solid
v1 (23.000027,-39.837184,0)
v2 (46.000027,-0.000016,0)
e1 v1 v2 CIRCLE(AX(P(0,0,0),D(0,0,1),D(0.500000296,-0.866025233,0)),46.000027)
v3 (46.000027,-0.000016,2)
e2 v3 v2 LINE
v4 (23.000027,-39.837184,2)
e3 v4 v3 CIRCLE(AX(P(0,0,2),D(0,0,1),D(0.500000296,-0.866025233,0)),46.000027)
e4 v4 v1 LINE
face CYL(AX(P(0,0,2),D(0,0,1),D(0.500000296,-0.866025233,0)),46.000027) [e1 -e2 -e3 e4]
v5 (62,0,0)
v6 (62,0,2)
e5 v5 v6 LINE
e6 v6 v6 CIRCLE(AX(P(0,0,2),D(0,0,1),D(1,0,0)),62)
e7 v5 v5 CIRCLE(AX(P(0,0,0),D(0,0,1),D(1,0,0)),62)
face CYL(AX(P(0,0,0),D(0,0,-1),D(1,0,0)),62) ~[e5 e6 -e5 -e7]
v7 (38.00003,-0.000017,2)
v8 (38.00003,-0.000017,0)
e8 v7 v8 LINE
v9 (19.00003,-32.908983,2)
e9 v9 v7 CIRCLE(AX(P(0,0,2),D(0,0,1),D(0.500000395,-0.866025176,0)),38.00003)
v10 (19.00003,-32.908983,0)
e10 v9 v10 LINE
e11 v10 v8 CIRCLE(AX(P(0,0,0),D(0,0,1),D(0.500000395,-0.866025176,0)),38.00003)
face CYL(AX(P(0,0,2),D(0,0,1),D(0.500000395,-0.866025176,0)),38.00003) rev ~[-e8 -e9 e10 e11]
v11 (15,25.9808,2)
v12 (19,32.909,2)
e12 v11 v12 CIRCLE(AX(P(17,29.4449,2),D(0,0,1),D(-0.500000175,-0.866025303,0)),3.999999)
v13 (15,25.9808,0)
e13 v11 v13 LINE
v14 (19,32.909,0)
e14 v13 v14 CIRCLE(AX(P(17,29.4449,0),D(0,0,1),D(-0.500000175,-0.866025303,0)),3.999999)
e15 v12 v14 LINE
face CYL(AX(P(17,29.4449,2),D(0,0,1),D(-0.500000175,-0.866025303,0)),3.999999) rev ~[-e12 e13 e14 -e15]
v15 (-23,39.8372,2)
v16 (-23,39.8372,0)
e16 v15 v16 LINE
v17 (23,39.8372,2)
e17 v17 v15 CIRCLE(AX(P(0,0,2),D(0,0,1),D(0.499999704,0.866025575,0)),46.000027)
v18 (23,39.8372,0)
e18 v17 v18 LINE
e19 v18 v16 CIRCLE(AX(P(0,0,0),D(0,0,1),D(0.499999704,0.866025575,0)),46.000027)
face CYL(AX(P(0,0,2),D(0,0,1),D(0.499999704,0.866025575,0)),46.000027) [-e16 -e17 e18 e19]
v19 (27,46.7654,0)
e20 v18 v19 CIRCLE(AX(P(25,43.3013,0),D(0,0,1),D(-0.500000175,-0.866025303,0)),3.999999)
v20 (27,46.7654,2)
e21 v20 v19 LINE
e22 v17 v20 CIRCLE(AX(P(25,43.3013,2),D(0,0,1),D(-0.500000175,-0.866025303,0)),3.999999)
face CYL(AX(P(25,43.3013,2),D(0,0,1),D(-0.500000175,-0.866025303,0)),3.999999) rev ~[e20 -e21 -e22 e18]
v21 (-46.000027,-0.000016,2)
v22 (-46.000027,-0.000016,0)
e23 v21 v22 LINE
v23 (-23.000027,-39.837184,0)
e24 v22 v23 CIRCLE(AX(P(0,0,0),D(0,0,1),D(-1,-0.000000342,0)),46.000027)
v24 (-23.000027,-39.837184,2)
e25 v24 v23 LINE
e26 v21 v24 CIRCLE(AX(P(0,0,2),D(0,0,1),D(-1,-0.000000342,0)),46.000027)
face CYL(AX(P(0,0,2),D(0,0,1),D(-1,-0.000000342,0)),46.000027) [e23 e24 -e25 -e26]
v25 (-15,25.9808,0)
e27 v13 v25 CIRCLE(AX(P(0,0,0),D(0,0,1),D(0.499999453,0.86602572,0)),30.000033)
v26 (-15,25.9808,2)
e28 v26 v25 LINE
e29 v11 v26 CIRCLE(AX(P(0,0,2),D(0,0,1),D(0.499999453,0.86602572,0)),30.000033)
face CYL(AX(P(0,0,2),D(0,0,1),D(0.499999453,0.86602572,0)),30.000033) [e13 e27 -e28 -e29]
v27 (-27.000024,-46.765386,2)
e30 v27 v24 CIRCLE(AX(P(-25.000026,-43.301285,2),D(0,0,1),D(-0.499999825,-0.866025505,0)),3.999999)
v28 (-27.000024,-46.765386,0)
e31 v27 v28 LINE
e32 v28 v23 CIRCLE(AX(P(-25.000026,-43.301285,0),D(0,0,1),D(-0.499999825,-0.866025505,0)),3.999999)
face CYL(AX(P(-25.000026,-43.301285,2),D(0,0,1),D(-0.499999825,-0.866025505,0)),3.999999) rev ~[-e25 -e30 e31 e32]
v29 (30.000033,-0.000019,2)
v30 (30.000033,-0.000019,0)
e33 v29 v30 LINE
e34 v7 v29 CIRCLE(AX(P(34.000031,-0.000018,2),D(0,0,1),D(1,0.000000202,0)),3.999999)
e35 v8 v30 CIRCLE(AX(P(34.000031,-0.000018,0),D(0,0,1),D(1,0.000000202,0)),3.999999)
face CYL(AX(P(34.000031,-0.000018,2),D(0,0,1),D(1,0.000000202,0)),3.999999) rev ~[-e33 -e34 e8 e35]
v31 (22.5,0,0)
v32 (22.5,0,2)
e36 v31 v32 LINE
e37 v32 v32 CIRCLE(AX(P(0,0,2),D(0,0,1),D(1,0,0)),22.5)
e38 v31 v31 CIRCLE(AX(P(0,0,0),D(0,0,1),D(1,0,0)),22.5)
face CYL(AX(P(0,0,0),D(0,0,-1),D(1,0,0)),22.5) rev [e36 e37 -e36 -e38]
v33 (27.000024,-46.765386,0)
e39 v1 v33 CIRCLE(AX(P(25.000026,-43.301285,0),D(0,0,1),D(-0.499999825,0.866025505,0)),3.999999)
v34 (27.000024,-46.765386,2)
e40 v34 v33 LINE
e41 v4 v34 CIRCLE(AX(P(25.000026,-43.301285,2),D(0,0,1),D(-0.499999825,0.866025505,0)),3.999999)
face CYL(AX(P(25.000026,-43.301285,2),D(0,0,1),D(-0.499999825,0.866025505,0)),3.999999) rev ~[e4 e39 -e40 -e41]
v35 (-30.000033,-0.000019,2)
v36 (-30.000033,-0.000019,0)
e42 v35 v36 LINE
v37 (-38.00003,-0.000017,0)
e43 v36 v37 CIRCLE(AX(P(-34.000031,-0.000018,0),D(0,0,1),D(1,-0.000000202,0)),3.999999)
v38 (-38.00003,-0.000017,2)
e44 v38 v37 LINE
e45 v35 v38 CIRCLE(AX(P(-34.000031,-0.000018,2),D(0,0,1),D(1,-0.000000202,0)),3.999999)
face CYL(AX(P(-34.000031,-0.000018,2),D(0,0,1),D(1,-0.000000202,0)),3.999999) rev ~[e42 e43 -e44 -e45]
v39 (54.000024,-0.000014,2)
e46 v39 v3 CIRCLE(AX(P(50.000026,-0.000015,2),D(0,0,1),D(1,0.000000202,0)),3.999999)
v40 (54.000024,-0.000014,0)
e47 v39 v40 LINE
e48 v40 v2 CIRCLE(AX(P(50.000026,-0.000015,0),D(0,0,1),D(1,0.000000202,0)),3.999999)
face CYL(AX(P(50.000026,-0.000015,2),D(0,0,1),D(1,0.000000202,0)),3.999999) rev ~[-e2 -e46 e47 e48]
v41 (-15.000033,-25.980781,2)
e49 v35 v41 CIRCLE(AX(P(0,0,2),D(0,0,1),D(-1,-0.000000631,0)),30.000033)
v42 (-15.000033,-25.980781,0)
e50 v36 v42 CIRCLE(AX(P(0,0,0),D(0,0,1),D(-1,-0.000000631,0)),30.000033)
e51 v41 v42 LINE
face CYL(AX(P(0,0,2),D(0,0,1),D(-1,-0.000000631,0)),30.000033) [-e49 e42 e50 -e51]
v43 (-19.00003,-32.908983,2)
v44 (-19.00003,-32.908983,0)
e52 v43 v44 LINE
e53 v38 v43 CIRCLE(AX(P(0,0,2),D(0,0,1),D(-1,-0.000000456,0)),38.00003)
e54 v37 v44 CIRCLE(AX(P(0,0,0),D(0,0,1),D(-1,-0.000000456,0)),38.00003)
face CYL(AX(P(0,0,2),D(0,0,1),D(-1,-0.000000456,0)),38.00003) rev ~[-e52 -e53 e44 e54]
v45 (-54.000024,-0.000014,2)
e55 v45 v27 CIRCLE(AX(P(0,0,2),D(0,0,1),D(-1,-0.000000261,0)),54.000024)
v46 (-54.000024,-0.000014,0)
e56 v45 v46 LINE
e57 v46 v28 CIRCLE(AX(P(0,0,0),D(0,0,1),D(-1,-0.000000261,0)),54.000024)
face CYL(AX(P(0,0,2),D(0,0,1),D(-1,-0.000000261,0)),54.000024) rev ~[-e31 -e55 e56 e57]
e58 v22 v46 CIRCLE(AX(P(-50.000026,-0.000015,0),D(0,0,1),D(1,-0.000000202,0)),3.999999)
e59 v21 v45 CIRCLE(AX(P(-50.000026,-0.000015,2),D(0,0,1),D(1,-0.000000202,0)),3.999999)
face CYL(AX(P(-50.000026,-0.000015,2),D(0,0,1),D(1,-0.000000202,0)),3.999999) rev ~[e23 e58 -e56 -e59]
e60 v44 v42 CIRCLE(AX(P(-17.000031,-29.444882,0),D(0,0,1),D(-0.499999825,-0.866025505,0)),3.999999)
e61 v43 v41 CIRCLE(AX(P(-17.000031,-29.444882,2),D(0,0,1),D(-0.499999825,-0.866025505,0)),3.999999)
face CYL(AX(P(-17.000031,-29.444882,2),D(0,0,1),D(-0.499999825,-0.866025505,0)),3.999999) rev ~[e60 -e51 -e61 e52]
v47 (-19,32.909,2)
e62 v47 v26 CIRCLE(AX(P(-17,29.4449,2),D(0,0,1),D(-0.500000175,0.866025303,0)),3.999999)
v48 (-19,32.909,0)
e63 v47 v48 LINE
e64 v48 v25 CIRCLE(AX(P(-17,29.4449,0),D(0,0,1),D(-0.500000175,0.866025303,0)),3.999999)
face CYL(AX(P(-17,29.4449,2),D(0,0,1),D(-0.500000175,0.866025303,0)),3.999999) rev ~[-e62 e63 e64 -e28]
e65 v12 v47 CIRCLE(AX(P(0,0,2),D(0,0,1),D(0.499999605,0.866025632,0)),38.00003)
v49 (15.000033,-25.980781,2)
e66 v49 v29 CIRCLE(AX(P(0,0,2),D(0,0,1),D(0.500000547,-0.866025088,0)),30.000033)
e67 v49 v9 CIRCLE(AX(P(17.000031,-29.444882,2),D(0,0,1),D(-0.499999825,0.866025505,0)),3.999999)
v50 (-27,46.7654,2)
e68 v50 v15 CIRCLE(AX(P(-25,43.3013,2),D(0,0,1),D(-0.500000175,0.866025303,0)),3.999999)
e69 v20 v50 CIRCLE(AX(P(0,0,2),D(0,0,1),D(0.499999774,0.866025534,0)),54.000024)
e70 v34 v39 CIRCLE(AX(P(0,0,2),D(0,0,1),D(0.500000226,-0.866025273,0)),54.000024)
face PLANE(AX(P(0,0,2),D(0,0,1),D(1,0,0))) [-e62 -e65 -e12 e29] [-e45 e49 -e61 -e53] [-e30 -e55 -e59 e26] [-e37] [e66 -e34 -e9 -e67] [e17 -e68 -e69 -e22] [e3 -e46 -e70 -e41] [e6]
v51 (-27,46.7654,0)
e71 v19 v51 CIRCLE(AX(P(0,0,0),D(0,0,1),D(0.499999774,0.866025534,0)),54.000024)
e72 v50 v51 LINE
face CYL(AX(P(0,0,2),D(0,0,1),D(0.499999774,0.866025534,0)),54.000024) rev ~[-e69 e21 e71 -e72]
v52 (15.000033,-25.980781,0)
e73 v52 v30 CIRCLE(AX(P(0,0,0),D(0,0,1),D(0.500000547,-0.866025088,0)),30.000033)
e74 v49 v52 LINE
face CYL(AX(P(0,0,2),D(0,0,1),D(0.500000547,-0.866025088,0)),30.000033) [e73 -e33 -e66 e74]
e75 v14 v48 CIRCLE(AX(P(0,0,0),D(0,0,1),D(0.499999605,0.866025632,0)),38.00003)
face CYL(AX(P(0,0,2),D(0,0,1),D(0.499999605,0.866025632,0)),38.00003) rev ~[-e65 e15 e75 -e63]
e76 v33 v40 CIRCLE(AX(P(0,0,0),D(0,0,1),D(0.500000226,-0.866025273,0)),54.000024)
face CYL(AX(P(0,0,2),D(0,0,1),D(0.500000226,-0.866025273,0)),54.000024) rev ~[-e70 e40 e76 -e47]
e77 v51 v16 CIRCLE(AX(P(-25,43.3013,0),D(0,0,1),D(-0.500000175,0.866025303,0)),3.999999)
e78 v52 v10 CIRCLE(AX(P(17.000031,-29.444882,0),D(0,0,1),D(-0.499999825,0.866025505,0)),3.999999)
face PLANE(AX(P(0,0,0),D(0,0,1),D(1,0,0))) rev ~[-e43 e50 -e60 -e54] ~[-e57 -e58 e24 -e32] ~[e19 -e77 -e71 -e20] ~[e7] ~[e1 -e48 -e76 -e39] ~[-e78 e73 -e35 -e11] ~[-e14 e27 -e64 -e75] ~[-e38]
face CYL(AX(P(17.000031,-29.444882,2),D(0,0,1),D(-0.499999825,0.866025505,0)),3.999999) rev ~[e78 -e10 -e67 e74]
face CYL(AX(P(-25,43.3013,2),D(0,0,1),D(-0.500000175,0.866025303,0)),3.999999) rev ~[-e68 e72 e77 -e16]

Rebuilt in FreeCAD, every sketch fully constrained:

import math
import FreeCAD as App
import Part
import Sketcher
from FreeCAD import Vector

doc = App.newDocument("Part")
body = doc.addObject("PartDesign::Body", "Body")

# Sketch on XY plane
sketch1 = doc.addObject("Sketcher::SketchObject", "Sketch")
body.addObject(sketch1)
sketch1.AttachmentSupport = (doc.XY_Plane, [""])
sketch1.MapMode = "FlatFace"
sketch1.addGeometry(Part.Circle(Vector(0, 0, 0), Vector(0, 0, 1), 62), False)
sketch1.addGeometry(Part.Circle(Vector(0, 0, 0), Vector(0, 0, 1), 22), False)
sketch1.addConstraint(Sketcher.Constraint("Coincident", 0, 3, -1, 1))
sketch1.addConstraint(Sketcher.Constraint("Coincident", 1, 3, -1, 1))
sketch1.addConstraint(Sketcher.Constraint("Diameter", 0, 124.0))
sketch1.addConstraint(Sketcher.Constraint("Diameter", 1, 45.0))
pad1 = doc.addObject("PartDesign::Pad", "Pad")
body.addObject(pad1)
pad1.Profile = sketch1
pad1.Length = 2

# Sketch on XY plane
sketch2 = doc.addObject("Sketcher::SketchObject", "Sketch001")
body.addObject(sketch2)
sketch2.AttachmentSupport = (doc.XY_Plane, [""])
sketch2.MapMode = "FlatFace"
sketch2.AttachmentOffset = App.Placement(Vector(0, 0, 2), App.Rotation())
sketch2.addGeometry(Part.ArcOfCircle(Part.Circle(Vector(17, 29.4, 0), Vector(0, 0, 1), 4), math.radians(-120), math.radians(60)), False)
sketch2.addGeometry(Part.ArcOfCircle(Part.Circle(Vector(0, 0, 0), Vector(0, 0, 1), 38), math.radians(60), math.radians(120)), False)
sketch2.addGeometry(Part.ArcOfCircle(Part.Circle(Vector(-17, 29.4, 0), Vector(0, 0, 1), 4), math.radians(120), math.radians(300)), False)
sketch2.addGeometry(Part.ArcOfCircle(Part.Circle(Vector(0, 0, 0), Vector(0, 0, 1), 30), math.radians(60), math.radians(120)), False)
sketch2.addGeometry(Part.ArcOfCircle(Part.Circle(Vector(25, 43.3, 0), Vector(0, 0, 1), 4), math.radians(-120), math.radians(60)), False)
sketch2.addGeometry(Part.ArcOfCircle(Part.Circle(Vector(0, 0, 0), Vector(0, 0, 1), 54), math.radians(60), math.radians(120)), False)
sketch2.addGeometry(Part.ArcOfCircle(Part.Circle(Vector(-25, 43.3, 0), Vector(0, 0, 1), 4), math.radians(120), math.radians(300)), False)
sketch2.addGeometry(Part.ArcOfCircle(Part.Circle(Vector(0, 0, 0), Vector(0, 0, 1), 46), math.radians(60), math.radians(120)), False)
sketch2.addConstraint(Sketcher.Constraint("Tangent", 0, 2, 1, 1))
sketch2.addConstraint(Sketcher.Constraint("Tangent", 1, 2, 2, 1))
sketch2.addConstraint(Sketcher.Constraint("Tangent", 2, 2, 3, 2))
sketch2.addConstraint(Sketcher.Constraint("Tangent", 3, 1, 0, 1))
sketch2.addConstraint(Sketcher.Constraint("Tangent", 4, 2, 5, 1))
sketch2.addConstraint(Sketcher.Constraint("Tangent", 5, 2, 6, 1))
sketch2.addConstraint(Sketcher.Constraint("Tangent", 6, 2, 7, 2))
sketch2.addConstraint(Sketcher.Constraint("Tangent", 7, 1, 4, 1))
sketch2.addConstraint(Sketcher.Constraint("Coincident", 1, 3, -1, 1))
sketch2.addConstraint(Sketcher.Constraint("Coincident", 3, 3, -1, 1))
sketch2.addConstraint(Sketcher.Constraint("Coincident", 5, 3, -1, 1))
sketch2.addConstraint(Sketcher.Constraint("Coincident", 7, 3, -1, 1))
sketch2.addConstraint(Sketcher.Constraint("Equal", 2, 4))
sketch2.addConstraint(Sketcher.Constraint("Horizontal", 0, 3, 2, 3))
sketch2.addConstraint(Sketcher.Constraint("Horizontal", 4, 3, 6, 3))
sketch2.addConstraint(Sketcher.Constraint("Radius", 0, 4.0))
sketch2.addConstraint(Sketcher.Constraint("Radius", 3, 30.0))
sketch2.addConstraint(Sketcher.Constraint("Radius", 5, 54.0))
sketch2.addConstraint(Sketcher.Constraint("DistanceX", 2, 3, 0, 3, 34.0))
sketch2.addConstraint(Sketcher.Constraint("DistanceX", 0, 3, 4, 3, 8.0))
pocket1 = doc.addObject("PartDesign::Pocket", "Pocket")
body.addObject(pocket1)
pocket1.Profile = sketch2
pocket1.Type = "ThroughAll"
doc.recompute()

polarpattern = doc.addObject("PartDesign::PolarPattern", "PolarPattern")
body.addObject(polarpattern)
polarpattern.Originals = [pocket1]
polarpattern.Axis = (doc.Z_Axis, [""])
polarpattern.Angle = 360
polarpattern.Occurrences = 3
body.Tip = polarpattern

doc.recompute()
